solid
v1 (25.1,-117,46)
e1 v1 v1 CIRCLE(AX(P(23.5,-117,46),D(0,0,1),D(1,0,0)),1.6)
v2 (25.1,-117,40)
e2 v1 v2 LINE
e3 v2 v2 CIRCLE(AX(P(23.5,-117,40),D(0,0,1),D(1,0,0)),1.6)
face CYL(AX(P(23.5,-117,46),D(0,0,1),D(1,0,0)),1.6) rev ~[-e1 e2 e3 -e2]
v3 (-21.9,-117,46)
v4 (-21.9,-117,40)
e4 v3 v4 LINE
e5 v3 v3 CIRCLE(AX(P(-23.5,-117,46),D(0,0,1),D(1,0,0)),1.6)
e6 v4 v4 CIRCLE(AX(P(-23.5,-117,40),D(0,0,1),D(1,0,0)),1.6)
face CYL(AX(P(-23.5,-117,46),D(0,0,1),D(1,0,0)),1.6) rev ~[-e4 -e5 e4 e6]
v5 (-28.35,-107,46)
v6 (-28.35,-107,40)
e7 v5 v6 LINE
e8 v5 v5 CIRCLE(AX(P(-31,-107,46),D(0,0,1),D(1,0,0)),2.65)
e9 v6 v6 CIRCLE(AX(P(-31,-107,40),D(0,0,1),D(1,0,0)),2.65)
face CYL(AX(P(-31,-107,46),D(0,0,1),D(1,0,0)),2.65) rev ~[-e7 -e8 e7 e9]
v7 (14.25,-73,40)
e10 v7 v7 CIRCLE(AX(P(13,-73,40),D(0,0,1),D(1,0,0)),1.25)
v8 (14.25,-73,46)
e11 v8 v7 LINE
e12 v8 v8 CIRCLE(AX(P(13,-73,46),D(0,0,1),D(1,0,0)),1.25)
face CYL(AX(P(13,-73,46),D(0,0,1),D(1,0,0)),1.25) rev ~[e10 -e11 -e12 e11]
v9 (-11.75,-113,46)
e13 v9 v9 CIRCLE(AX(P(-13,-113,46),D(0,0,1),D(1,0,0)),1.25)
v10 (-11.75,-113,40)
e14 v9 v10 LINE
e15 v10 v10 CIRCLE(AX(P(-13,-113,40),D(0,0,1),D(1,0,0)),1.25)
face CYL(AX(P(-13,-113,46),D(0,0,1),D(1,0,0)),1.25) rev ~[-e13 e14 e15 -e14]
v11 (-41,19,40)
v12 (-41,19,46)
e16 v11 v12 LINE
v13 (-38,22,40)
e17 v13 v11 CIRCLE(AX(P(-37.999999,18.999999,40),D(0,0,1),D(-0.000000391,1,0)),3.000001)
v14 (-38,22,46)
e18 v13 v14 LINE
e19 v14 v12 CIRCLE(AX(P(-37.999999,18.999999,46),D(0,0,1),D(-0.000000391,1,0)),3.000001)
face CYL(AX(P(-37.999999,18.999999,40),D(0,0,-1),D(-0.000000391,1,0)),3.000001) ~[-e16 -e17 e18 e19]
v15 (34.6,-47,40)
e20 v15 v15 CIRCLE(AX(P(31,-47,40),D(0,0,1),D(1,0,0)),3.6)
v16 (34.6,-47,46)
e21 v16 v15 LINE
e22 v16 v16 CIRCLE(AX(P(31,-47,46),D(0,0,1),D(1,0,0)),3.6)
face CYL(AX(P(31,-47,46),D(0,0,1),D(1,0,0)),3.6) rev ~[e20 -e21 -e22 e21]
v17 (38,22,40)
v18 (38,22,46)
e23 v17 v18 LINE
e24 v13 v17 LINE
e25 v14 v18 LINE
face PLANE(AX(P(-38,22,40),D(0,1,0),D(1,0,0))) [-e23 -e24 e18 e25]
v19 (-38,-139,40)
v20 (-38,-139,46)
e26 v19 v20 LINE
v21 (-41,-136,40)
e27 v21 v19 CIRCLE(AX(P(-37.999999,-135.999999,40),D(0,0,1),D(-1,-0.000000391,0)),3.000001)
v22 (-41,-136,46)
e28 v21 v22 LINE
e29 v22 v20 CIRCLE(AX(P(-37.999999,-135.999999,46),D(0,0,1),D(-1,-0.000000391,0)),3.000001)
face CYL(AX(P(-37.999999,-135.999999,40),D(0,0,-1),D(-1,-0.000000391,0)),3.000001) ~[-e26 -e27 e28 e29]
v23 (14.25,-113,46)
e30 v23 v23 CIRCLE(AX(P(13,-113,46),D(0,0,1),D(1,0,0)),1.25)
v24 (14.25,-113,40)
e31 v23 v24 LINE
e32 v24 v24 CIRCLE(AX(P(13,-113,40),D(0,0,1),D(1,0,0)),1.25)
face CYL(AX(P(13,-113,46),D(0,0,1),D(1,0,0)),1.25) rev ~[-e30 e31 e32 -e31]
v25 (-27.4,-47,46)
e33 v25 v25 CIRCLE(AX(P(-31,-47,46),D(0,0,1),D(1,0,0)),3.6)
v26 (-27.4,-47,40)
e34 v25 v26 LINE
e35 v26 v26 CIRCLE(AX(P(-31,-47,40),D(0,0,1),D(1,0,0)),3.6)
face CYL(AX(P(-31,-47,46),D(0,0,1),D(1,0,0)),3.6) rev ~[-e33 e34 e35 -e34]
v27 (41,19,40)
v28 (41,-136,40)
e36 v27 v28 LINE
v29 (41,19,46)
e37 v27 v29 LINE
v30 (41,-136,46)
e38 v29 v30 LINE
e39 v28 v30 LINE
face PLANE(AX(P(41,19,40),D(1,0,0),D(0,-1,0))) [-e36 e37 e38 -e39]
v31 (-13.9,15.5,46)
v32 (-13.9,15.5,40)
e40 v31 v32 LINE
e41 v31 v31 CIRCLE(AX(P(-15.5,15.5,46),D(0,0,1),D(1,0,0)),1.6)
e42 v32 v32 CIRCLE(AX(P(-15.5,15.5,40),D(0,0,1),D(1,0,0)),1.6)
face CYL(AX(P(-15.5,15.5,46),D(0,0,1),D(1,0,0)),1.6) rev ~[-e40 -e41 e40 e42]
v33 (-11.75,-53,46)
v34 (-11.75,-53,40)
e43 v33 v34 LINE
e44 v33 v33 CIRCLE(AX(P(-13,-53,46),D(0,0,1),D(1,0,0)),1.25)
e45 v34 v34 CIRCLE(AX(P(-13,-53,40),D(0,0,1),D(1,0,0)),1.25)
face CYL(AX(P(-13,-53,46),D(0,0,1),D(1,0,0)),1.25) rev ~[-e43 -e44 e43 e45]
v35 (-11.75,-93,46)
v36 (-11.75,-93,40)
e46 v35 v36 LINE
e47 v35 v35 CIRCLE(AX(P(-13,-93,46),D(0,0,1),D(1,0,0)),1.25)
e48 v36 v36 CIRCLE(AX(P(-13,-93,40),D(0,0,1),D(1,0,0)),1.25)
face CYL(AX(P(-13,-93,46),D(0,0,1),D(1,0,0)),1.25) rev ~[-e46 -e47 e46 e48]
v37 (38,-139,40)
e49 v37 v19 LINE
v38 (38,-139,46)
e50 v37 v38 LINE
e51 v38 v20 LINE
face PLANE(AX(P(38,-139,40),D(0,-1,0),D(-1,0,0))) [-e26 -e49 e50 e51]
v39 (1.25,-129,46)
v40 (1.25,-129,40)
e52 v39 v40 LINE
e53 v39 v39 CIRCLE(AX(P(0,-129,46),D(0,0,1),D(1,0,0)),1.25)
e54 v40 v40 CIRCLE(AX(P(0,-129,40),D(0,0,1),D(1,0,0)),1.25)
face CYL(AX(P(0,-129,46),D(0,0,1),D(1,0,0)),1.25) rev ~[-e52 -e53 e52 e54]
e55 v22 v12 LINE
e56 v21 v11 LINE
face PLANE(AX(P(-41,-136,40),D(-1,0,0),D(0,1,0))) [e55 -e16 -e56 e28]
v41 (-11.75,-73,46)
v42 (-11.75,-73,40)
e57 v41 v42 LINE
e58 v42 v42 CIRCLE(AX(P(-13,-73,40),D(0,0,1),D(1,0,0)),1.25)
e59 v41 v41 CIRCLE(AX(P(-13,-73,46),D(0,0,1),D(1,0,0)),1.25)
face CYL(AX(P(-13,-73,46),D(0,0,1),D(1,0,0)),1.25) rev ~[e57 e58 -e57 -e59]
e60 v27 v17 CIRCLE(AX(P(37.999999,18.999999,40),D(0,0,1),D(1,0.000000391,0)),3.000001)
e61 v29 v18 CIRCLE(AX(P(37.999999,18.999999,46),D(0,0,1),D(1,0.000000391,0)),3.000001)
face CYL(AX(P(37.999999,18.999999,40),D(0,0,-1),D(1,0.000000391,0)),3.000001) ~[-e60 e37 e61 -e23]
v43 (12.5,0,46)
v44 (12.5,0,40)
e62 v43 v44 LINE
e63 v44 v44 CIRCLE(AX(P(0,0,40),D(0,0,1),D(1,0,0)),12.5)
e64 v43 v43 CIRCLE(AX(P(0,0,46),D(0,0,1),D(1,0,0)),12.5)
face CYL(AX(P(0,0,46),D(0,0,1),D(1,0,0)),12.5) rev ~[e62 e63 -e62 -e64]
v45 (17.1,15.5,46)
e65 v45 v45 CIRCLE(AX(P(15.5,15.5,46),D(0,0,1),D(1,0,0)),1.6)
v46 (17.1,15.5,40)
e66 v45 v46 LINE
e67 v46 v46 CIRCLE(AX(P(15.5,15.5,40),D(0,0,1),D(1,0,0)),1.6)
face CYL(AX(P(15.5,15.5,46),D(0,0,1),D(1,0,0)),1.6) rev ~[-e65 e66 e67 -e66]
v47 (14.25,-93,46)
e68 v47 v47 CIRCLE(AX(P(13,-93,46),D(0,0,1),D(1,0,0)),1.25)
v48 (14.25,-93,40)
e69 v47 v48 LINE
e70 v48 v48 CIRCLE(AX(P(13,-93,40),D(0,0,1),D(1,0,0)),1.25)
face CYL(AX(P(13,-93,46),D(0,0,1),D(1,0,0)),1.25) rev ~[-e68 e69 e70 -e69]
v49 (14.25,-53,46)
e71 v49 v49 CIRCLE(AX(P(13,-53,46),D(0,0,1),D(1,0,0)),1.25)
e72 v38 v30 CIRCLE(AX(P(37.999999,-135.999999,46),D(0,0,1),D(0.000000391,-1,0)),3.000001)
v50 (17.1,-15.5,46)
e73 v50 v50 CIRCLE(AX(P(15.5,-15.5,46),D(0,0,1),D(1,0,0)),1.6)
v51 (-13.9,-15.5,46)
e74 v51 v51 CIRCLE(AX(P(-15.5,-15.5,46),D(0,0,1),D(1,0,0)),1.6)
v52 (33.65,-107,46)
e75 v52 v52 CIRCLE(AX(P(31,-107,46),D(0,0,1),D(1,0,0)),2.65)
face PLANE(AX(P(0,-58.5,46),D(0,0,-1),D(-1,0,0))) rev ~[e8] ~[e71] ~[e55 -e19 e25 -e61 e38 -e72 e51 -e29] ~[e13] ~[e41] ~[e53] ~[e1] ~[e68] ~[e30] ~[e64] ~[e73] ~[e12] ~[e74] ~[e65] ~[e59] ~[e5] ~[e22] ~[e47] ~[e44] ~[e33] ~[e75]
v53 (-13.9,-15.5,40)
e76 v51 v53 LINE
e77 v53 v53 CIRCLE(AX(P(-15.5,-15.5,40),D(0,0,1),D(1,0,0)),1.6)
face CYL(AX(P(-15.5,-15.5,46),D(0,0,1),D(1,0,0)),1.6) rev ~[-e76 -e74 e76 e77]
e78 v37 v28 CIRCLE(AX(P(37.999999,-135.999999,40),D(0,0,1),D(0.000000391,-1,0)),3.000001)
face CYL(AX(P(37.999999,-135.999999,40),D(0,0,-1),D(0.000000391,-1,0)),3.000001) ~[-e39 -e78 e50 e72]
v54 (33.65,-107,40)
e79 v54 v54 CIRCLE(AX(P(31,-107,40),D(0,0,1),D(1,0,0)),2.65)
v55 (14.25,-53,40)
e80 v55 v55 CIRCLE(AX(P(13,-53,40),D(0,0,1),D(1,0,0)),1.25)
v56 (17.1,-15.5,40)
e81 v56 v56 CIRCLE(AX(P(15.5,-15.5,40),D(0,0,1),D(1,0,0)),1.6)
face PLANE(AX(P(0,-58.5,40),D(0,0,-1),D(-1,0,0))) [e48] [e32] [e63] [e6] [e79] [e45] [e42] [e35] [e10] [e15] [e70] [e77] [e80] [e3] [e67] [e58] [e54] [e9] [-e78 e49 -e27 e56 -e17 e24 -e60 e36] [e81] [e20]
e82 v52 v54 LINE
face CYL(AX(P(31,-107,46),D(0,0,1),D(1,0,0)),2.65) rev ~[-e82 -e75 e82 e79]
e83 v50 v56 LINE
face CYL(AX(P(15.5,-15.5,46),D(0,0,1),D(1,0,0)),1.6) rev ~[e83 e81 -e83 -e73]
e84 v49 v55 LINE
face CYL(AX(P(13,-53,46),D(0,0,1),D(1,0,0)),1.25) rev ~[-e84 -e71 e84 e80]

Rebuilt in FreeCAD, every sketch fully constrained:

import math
import FreeCAD as App
import Part
import Sketcher
from FreeCAD import Vector
Q = App.Units.Quantity

doc = App.newDocument("Part")
params = doc.addObject("Spreadsheet::Sheet", "Params")
for row, (alias, value) in enumerate([
    ("sketch1_radius", "3.000001 mm"),
    ("sketch1_width", "76 mm"),
    ("sketch1_height", "155 mm"),
    ("pad1_length", "6 mm"),
    ("sketch2_diameter", "3.2 mm"),
    ("pocket1_length", "25 mm"),
    ("sketch3_diameter", "25 mm"),
    ("sketch4_diameter", "2.5 mm"),
    ("pocket3_length", "25 mm"),
    ("sketch5_diameter", "2.5 mm"),
    ("pocket4_length", "25 mm"),
    ("sketch6_diameter", "7.2 mm"),
    ("pocket5_length", "25 mm"),
    ("sketch7_diameter", "5.3 mm"),
    ("pocket6_length", "25 mm"),
    ("sketch8_diameter", "3.2 mm"),
    ("pocket7_length", "25 mm"),
], start=1):
    params.set(f"A{row}", alias)
    params.set(f"B{row}", "=" + value)
    params.setAlias(f"B{row}", alias)

body = doc.addObject("PartDesign::Body", "Body")

sketch1 = body.newObject("Sketcher::SketchObject", "Sketch")
sketch1.AttachmentSupport = (doc.getObject("XY_Plane"), [""])
sketch1.MapMode = "FlatFace"
sketch1.addGeometry(Part.LineSegment(Vector(38, 22, 0), Vector(-38, 22, 0)), False)
sketch1.addGeometry(Part.ArcOfCircle(Part.Circle(Vector(-38, 19, 0), Vector(0, 0, 1), 3), math.radians(90), math.radians(180)), False)
sketch1.addGeometry(Part.LineSegment(Vector(-41, 19, 0), Vector(-41, -136, 0)), False)
sketch1.addGeometry(Part.ArcOfCircle(Part.Circle(Vector(-38, -136, 0), Vector(0, 0, 1), 3), math.radians(-180), math.radians(-90)), False)
sketch1.addGeometry(Part.LineSegment(Vector(-38, -139, 0), Vector(38, -139, 0)), False)
sketch1.addGeometry(Part.ArcOfCircle(Part.Circle(Vector(38, -136, 0), Vector(0, 0, 1), 3), math.radians(-90), math.radians(0)), False)
sketch1.addGeometry(Part.LineSegment(Vector(41, -136, 0), Vector(41, 19, 0)), False)
sketch1.addGeometry(Part.ArcOfCircle(Part.Circle(Vector(38, 19, 0), Vector(0, 0, 1), 3), math.radians(0), math.radians(90)), False)
sketch1.addConstraint(Sketcher.Constraint("Tangent", 0, 2, 1, 1))
sketch1.addConstraint(Sketcher.Constraint("Tangent", 1, 2, 2, 1))
sketch1.addConstraint(Sketcher.Constraint("Tangent", 2, 2, 3, 1))
sketch1.addConstraint(Sketcher.Constraint("Tangent", 3, 2, 4, 1))
sketch1.addConstraint(Sketcher.Constraint("Tangent", 4, 2, 5, 1))
sketch1.addConstraint(Sketcher.Constraint("Tangent", 5, 2, 6, 1))
sketch1.addConstraint(Sketcher.Constraint("Tangent", 6, 2, 7, 1))
sketch1.addConstraint(Sketcher.Constraint("Tangent", 7, 2, 0, 1))
sketch1.addConstraint(Sketcher.Constraint("Horizontal", 0))
sketch1.addConstraint(Sketcher.Constraint("Vertical", 2))
sketch1.addConstraint(Sketcher.Constraint("Horizontal", 4))
sketch1.addConstraint(Sketcher.Constraint("Vertical", 6))
sketch1.addConstraint(Sketcher.Constraint("Equal", 1, 3))
sketch1.addConstraint(Sketcher.Constraint("Equal", 3, 5))
sketch1.addConstraint(Sketcher.Constraint("Equal", 5, 7))
sketch1.addConstraint(Sketcher.Constraint("Radius", 1, Q("3.000001 mm")))
sketch1.addConstraint(Sketcher.Constraint("DistanceX", 0, 2, 0, 1, Q("76 mm")))
sketch1.addConstraint(Sketcher.Constraint("DistanceY", 2, 2, 2, 1, Q("155 mm")))
sketch1.addConstraint(Sketcher.Constraint("DistanceX", 1, 3, -1, 1, Q("37.999999 mm")))
sketch1.addConstraint(Sketcher.Constraint("DistanceY", -1, 1, 1, 3, Q("18.999999 mm")))
sketch1.setExpression("Constraints[15]", "Params.sketch1_radius")
sketch1.setExpression("Constraints[16]", "Params.sketch1_width")
sketch1.setExpression("Constraints[17]", "Params.sketch1_height")
pad1 = body.newObject("PartDesign::Pad", "Pad")
pad1.Profile = sketch1
pad1.setExpression("Length", "Params.pad1_length")

sketch2 = body.newObject("Sketcher::SketchObject", "Sketch001")
sketch2.AttachmentSupport = (doc.getObject("XY_Plane"), [""])
sketch2.MapMode = "FlatFace"
sketch2.AttachmentOffset = App.Placement(Vector(0, 0, 6), App.Rotation())
sketch2.addGeometry(Part.Circle(Vector(-15.5, 15.5, 0), Vector(0, 0, 1), 1.6), False)
sketch2.addGeometry(Part.Circle(Vector(15.5, 15.5, 0), Vector(0, 0, 1), 1.6), False)
sketch2.addGeometry(Part.Circle(Vector(-15.5, -15.5, 0), Vector(0, 0, 1), 1.6), False)
sketch2.addGeometry(Part.Circle(Vector(15.5, -15.5, 0), Vector(0, 0, 1), 1.6), False)
sketch2.addConstraint(Sketcher.Constraint("Equal", 0, 1))
sketch2.addConstraint(Sketcher.Constraint("Equal", 1, 2))
sketch2.addConstraint(Sketcher.Constraint("Equal", 2, 3))
sketch2.addConstraint(Sketcher.Constraint("Symmetric", 1, 3, 2, 3, -1, 1))
sketch2.addConstraint(Sketcher.Constraint("Symmetric", 0, 3, 3, 3, -1, 1))
sketch2.addConstraint(Sketcher.Constraint("Symmetric", 0, 3, 1, 3, -2))
sketch2.addConstraint(Sketcher.Constraint("Diameter", 0, Q("3.2 mm")))
sketch2.addConstraint(Sketcher.Constraint("DistanceX", 0, 3, 1, 3, Q("31 mm")))
sketch2.addConstraint(Sketcher.Constraint("DistanceY", 2, 3, 0, 3, Q("31 mm")))
sketch2.setExpression("Constraints[6]", "Params.sketch2_diameter")
pocket1 = body.newObject("PartDesign::Pocket", "Pocket")
pocket1.Profile = sketch2
pocket1.setExpression("Length", "Params.pocket1_length")

sketch3 = body.newObject("Sketcher::SketchObject", "Sketch002")
sketch3.AttachmentSupport = (doc.getObject("XY_Plane"), [""])
sketch3.MapMode = "FlatFace"
sketch3.AttachmentOffset = App.Placement(Vector(0, 0, 6), App.Rotation())
sketch3.addGeometry(Part.Circle(Vector(0, 0, 0), Vector(0, 0, 1), 12), False)
sketch3.addConstraint(Sketcher.Constraint("Coincident", 0, 3, -1, 1))
sketch3.addConstraint(Sketcher.Constraint("Diameter", 0, Q("25 mm")))
sketch3.setExpression("Constraints[1]", "Params.sketch3_diameter")
pocket2 = body.newObject("PartDesign::Pocket", "Pocket001")
pocket2.Profile = sketch3
pocket2.Type = "ThroughAll"

sketch4 = body.newObject("Sketcher::SketchObject", "Sketch003")
sketch4.AttachmentSupport = (doc.getObject("XY_Plane"), [""])
sketch4.MapMode = "FlatFace"
sketch4.AttachmentOffset = App.Placement(Vector(0, 0, 6), App.Rotation())
sketch4.addGeometry(Part.Circle(Vector(-13, -53, 0), Vector(0, 0, 1), 1.2), False)
sketch4.addGeometry(Part.Circle(Vector(-13, -73, 0), Vector(0, 0, 1), 1.2), False)
sketch4.addGeometry(Part.Circle(Vector(-13, -93, 0), Vector(0, 0, 1), 1.2), False)
sketch4.addGeometry(Part.Circle(Vector(-13, -113, 0), Vector(0, 0, 1), 1.2), False)
sketch4.addGeometry(Part.Circle(Vector(13, -53, 0), Vector(0, 0, 1), 1.2), False)
sketch4.addGeometry(Part.Circle(Vector(13, -73, 0), Vector(0, 0, 1), 1.2), False)
sketch4.addGeometry(Part.Circle(Vector(13, -93, 0), Vector(0, 0, 1), 1.2), False)
sketch4.addGeometry(Part.Circle(Vector(13, -113, 0), Vector(0, 0, 1), 1.2), False)
sketch4.addConstraint(Sketcher.Constraint("Equal", 0, 1))
sketch4.addConstraint(Sketcher.Constraint("Equal", 1, 2))
sketch4.addConstraint(Sketcher.Constraint("Equal", 2, 3))
sketch4.addConstraint(Sketcher.Constraint("Equal", 3, 4))
sketch4.addConstraint(Sketcher.Constraint("Equal", 4, 5))
sketch4.addConstraint(Sketcher.Constraint("Equal", 5, 6))
sketch4.addConstraint(Sketcher.Constraint("Equal", 6, 7))
sketch4.addConstraint(Sketcher.Constraint("Symmetric", 0, 3, 4, 3, -2))
sketch4.addConstraint(Sketcher.Constraint("Symmetric", 1, 3, 5, 3, -2))
sketch4.addConstraint(Sketcher.Constraint("Symmetric", 2, 3, 6, 3, -2))
sketch4.addConstraint(Sketcher.Constraint("Symmetric", 3, 3, 7, 3, -2))
sketch4.addConstraint(Sketcher.Constraint("Vertical", 0, 3, 1, 3))
sketch4.addConstraint(Sketcher.Constraint("Vertical", 1, 3, 2, 3))
sketch4.addConstraint(Sketcher.Constraint("Vertical", 2, 3, 3, 3))
sketch4.addConstraint(Sketcher.Constraint("Diameter", 0, Q("2.5 mm")))
sketch4.addConstraint(Sketcher.Constraint("DistanceX", 0, 3, -1, 1, Q("13 mm")))
sketch4.addConstraint(Sketcher.Constraint("DistanceY", 0, 3, -1, 1, Q("53 mm")))
sketch4.addConstraint(Sketcher.Constraint("DistanceY", 1, 3, -1, 1, Q("73 mm")))
sketch4.addConstraint(Sketcher.Constraint("DistanceY", 2, 3, -1, 1, Q("93 mm")))
sketch4.addConstraint(Sketcher.Constraint("DistanceY", 3, 3, -1, 1, Q("113 mm")))
sketch4.setExpression("Constraints[14]", "Params.sketch4_diameter")
pocket3 = body.newObject("PartDesign::Pocket", "Pocket002")
pocket3.Profile = sketch4
pocket3.setExpression("Length", "Params.pocket3_length")

sketch5 = body.newObject("Sketcher::SketchObject", "Sketch004")
sketch5.AttachmentSupport = (doc.getObject("XY_Plane"), [""])
sketch5.MapMode = "FlatFace"
sketch5.AttachmentOffset = App.Placement(Vector(0, 0, 6), App.Rotation())
sketch5.addGeometry(Part.Circle(Vector(0, -129, 0), Vector(0, 0, 1), 1.2), False)
sketch5.addConstraint(Sketcher.Constraint("PointOnObject", 0, 3, -2))
sketch5.addConstraint(Sketcher.Constraint("Diameter", 0, Q("2.5 mm")))
sketch5.addConstraint(Sketcher.Constraint("DistanceY", 0, 3, -1, 1, Q("129 mm")))
sketch5.setExpression("Constraints[1]", "Params.sketch5_diameter")
pocket4 = body.newObject("PartDesign::Pocket", "Pocket003")
pocket4.Profile = sketch5
pocket4.setExpression("Length", "Params.pocket4_length")

sketch6 = body.newObject("Sketcher::SketchObject", "Sketch005")
sketch6.AttachmentSupport = (doc.getObject("XY_Plane"), [""])
sketch6.MapMode = "FlatFace"
sketch6.AttachmentOffset = App.Placement(Vector(0, 0, 6), App.Rotation())
sketch6.addGeometry(Part.Circle(Vector(-31, -47, 0), Vector(0, 0, 1), 3.6), False)
sketch6.addGeometry(Part.Circle(Vector(31, -47, 0), Vector(0, 0, 1), 3.6), False)
sketch6.addConstraint(Sketcher.Constraint("Equal", 0, 1))
sketch6.addConstraint(Sketcher.Constraint("Symmetric", 0, 3, 1, 3, -2))
sketch6.addConstraint(Sketcher.Constraint("Diameter", 0, Q("7.2 mm")))
sketch6.addConstraint(Sketcher.Constraint("DistanceX", 0, 3, -1, 1, Q("31 mm")))
sketch6.addConstraint(Sketcher.Constraint("DistanceY", 0, 3, -1, 1, Q("47 mm")))
sketch6.setExpression("Constraints[2]", "Params.sketch6_diameter")
pocket5 = body.newObject("PartDesign::Pocket", "Pocket004")
pocket5.Profile = sketch6
pocket5.setExpression("Length", "Params.pocket5_length")

sketch7 = body.newObject("Sketcher::SketchObject", "Sketch006")
sketch7.AttachmentSupport = (doc.getObject("XY_Plane"), [""])
sketch7.MapMode = "FlatFace"
sketch7.AttachmentOffset = App.Placement(Vector(0, 0, 6), App.Rotation())
sketch7.addGeometry(Part.Circle(Vector(-31, -107, 0), Vector(0, 0, 1), 2.6), False)
sketch7.addGeometry(Part.Circle(Vector(31, -107, 0), Vector(0, 0, 1), 2.6), False)
sketch7.addConstraint(Sketcher.Constraint("Equal", 0, 1))
sketch7.addConstraint(Sketcher.Constraint("Symmetric", 0, 3, 1, 3, -2))
sketch7.addConstraint(Sketcher.Constraint("Diameter", 0, Q("5.3 mm")))
sketch7.addConstraint(Sketcher.Constraint("DistanceX", 0, 3, -1, 1, Q("31 mm")))
sketch7.addConstraint(Sketcher.Constraint("DistanceY", 0, 3, -1, 1, Q("107 mm")))
sketch7.setExpression("Constraints[2]", "Params.sketch7_diameter")
pocket6 = body.newObject("PartDesign::Pocket", "Pocket005")
pocket6.Profile = sketch7
pocket6.setExpression("Length", "Params.pocket6_length")

sketch8 = body.newObject("Sketcher::SketchObject", "Sketch007")
sketch8.AttachmentSupport = (doc.getObject("XY_Plane"), [""])
sketch8.MapMode = "FlatFace"
sketch8.AttachmentOffset = App.Placement(Vector(0, 0, 6), App.Rotation())
sketch8.addGeometry(Part.Circle(Vector(-23.5, -117, 0), Vector(0, 0, 1), 1.6), False)
sketch8.addGeometry(Part.Circle(Vector(23.5, -117, 0), Vector(0, 0, 1), 1.6), False)
sketch8.addConstraint(Sketcher.Constraint("Equal", 0, 1))
sketch8.addConstraint(Sketcher.Constraint("Symmetric", 0, 3, 1, 3, -2))
sketch8.addConstraint(Sketcher.Constraint("Diameter", 0, Q("3.2 mm")))
sketch8.addConstraint(Sketcher.Constraint("DistanceY", 0, 3, -1, 1, Q("117 mm")))
sketch8.addConstraint(Sketcher.Constraint("DistanceX", 0, 3, 1, 3, Q("47 mm")))
sketch8.setExpression("Constraints[2]", "Params.sketch8_diameter")
pocket7 = body.newObject("PartDesign::Pocket", "Pocket006")
pocket7.Profile = sketch8
pocket7.setExpression("Length", "Params.pocket7_length")
body2 = doc.addObject("PartDesign::Body", "Body001")
doc.recompute()

body.Placement = App.Placement(Vector(0, 0, 40), App.Rotation(Vector(0, 0, 1), 0))
boolean = body2.newObject("PartDesign::Boolean", "Boolean")
boolean.Type = "Fuse"
boolean.addObjects([body])

doc.recompute()
